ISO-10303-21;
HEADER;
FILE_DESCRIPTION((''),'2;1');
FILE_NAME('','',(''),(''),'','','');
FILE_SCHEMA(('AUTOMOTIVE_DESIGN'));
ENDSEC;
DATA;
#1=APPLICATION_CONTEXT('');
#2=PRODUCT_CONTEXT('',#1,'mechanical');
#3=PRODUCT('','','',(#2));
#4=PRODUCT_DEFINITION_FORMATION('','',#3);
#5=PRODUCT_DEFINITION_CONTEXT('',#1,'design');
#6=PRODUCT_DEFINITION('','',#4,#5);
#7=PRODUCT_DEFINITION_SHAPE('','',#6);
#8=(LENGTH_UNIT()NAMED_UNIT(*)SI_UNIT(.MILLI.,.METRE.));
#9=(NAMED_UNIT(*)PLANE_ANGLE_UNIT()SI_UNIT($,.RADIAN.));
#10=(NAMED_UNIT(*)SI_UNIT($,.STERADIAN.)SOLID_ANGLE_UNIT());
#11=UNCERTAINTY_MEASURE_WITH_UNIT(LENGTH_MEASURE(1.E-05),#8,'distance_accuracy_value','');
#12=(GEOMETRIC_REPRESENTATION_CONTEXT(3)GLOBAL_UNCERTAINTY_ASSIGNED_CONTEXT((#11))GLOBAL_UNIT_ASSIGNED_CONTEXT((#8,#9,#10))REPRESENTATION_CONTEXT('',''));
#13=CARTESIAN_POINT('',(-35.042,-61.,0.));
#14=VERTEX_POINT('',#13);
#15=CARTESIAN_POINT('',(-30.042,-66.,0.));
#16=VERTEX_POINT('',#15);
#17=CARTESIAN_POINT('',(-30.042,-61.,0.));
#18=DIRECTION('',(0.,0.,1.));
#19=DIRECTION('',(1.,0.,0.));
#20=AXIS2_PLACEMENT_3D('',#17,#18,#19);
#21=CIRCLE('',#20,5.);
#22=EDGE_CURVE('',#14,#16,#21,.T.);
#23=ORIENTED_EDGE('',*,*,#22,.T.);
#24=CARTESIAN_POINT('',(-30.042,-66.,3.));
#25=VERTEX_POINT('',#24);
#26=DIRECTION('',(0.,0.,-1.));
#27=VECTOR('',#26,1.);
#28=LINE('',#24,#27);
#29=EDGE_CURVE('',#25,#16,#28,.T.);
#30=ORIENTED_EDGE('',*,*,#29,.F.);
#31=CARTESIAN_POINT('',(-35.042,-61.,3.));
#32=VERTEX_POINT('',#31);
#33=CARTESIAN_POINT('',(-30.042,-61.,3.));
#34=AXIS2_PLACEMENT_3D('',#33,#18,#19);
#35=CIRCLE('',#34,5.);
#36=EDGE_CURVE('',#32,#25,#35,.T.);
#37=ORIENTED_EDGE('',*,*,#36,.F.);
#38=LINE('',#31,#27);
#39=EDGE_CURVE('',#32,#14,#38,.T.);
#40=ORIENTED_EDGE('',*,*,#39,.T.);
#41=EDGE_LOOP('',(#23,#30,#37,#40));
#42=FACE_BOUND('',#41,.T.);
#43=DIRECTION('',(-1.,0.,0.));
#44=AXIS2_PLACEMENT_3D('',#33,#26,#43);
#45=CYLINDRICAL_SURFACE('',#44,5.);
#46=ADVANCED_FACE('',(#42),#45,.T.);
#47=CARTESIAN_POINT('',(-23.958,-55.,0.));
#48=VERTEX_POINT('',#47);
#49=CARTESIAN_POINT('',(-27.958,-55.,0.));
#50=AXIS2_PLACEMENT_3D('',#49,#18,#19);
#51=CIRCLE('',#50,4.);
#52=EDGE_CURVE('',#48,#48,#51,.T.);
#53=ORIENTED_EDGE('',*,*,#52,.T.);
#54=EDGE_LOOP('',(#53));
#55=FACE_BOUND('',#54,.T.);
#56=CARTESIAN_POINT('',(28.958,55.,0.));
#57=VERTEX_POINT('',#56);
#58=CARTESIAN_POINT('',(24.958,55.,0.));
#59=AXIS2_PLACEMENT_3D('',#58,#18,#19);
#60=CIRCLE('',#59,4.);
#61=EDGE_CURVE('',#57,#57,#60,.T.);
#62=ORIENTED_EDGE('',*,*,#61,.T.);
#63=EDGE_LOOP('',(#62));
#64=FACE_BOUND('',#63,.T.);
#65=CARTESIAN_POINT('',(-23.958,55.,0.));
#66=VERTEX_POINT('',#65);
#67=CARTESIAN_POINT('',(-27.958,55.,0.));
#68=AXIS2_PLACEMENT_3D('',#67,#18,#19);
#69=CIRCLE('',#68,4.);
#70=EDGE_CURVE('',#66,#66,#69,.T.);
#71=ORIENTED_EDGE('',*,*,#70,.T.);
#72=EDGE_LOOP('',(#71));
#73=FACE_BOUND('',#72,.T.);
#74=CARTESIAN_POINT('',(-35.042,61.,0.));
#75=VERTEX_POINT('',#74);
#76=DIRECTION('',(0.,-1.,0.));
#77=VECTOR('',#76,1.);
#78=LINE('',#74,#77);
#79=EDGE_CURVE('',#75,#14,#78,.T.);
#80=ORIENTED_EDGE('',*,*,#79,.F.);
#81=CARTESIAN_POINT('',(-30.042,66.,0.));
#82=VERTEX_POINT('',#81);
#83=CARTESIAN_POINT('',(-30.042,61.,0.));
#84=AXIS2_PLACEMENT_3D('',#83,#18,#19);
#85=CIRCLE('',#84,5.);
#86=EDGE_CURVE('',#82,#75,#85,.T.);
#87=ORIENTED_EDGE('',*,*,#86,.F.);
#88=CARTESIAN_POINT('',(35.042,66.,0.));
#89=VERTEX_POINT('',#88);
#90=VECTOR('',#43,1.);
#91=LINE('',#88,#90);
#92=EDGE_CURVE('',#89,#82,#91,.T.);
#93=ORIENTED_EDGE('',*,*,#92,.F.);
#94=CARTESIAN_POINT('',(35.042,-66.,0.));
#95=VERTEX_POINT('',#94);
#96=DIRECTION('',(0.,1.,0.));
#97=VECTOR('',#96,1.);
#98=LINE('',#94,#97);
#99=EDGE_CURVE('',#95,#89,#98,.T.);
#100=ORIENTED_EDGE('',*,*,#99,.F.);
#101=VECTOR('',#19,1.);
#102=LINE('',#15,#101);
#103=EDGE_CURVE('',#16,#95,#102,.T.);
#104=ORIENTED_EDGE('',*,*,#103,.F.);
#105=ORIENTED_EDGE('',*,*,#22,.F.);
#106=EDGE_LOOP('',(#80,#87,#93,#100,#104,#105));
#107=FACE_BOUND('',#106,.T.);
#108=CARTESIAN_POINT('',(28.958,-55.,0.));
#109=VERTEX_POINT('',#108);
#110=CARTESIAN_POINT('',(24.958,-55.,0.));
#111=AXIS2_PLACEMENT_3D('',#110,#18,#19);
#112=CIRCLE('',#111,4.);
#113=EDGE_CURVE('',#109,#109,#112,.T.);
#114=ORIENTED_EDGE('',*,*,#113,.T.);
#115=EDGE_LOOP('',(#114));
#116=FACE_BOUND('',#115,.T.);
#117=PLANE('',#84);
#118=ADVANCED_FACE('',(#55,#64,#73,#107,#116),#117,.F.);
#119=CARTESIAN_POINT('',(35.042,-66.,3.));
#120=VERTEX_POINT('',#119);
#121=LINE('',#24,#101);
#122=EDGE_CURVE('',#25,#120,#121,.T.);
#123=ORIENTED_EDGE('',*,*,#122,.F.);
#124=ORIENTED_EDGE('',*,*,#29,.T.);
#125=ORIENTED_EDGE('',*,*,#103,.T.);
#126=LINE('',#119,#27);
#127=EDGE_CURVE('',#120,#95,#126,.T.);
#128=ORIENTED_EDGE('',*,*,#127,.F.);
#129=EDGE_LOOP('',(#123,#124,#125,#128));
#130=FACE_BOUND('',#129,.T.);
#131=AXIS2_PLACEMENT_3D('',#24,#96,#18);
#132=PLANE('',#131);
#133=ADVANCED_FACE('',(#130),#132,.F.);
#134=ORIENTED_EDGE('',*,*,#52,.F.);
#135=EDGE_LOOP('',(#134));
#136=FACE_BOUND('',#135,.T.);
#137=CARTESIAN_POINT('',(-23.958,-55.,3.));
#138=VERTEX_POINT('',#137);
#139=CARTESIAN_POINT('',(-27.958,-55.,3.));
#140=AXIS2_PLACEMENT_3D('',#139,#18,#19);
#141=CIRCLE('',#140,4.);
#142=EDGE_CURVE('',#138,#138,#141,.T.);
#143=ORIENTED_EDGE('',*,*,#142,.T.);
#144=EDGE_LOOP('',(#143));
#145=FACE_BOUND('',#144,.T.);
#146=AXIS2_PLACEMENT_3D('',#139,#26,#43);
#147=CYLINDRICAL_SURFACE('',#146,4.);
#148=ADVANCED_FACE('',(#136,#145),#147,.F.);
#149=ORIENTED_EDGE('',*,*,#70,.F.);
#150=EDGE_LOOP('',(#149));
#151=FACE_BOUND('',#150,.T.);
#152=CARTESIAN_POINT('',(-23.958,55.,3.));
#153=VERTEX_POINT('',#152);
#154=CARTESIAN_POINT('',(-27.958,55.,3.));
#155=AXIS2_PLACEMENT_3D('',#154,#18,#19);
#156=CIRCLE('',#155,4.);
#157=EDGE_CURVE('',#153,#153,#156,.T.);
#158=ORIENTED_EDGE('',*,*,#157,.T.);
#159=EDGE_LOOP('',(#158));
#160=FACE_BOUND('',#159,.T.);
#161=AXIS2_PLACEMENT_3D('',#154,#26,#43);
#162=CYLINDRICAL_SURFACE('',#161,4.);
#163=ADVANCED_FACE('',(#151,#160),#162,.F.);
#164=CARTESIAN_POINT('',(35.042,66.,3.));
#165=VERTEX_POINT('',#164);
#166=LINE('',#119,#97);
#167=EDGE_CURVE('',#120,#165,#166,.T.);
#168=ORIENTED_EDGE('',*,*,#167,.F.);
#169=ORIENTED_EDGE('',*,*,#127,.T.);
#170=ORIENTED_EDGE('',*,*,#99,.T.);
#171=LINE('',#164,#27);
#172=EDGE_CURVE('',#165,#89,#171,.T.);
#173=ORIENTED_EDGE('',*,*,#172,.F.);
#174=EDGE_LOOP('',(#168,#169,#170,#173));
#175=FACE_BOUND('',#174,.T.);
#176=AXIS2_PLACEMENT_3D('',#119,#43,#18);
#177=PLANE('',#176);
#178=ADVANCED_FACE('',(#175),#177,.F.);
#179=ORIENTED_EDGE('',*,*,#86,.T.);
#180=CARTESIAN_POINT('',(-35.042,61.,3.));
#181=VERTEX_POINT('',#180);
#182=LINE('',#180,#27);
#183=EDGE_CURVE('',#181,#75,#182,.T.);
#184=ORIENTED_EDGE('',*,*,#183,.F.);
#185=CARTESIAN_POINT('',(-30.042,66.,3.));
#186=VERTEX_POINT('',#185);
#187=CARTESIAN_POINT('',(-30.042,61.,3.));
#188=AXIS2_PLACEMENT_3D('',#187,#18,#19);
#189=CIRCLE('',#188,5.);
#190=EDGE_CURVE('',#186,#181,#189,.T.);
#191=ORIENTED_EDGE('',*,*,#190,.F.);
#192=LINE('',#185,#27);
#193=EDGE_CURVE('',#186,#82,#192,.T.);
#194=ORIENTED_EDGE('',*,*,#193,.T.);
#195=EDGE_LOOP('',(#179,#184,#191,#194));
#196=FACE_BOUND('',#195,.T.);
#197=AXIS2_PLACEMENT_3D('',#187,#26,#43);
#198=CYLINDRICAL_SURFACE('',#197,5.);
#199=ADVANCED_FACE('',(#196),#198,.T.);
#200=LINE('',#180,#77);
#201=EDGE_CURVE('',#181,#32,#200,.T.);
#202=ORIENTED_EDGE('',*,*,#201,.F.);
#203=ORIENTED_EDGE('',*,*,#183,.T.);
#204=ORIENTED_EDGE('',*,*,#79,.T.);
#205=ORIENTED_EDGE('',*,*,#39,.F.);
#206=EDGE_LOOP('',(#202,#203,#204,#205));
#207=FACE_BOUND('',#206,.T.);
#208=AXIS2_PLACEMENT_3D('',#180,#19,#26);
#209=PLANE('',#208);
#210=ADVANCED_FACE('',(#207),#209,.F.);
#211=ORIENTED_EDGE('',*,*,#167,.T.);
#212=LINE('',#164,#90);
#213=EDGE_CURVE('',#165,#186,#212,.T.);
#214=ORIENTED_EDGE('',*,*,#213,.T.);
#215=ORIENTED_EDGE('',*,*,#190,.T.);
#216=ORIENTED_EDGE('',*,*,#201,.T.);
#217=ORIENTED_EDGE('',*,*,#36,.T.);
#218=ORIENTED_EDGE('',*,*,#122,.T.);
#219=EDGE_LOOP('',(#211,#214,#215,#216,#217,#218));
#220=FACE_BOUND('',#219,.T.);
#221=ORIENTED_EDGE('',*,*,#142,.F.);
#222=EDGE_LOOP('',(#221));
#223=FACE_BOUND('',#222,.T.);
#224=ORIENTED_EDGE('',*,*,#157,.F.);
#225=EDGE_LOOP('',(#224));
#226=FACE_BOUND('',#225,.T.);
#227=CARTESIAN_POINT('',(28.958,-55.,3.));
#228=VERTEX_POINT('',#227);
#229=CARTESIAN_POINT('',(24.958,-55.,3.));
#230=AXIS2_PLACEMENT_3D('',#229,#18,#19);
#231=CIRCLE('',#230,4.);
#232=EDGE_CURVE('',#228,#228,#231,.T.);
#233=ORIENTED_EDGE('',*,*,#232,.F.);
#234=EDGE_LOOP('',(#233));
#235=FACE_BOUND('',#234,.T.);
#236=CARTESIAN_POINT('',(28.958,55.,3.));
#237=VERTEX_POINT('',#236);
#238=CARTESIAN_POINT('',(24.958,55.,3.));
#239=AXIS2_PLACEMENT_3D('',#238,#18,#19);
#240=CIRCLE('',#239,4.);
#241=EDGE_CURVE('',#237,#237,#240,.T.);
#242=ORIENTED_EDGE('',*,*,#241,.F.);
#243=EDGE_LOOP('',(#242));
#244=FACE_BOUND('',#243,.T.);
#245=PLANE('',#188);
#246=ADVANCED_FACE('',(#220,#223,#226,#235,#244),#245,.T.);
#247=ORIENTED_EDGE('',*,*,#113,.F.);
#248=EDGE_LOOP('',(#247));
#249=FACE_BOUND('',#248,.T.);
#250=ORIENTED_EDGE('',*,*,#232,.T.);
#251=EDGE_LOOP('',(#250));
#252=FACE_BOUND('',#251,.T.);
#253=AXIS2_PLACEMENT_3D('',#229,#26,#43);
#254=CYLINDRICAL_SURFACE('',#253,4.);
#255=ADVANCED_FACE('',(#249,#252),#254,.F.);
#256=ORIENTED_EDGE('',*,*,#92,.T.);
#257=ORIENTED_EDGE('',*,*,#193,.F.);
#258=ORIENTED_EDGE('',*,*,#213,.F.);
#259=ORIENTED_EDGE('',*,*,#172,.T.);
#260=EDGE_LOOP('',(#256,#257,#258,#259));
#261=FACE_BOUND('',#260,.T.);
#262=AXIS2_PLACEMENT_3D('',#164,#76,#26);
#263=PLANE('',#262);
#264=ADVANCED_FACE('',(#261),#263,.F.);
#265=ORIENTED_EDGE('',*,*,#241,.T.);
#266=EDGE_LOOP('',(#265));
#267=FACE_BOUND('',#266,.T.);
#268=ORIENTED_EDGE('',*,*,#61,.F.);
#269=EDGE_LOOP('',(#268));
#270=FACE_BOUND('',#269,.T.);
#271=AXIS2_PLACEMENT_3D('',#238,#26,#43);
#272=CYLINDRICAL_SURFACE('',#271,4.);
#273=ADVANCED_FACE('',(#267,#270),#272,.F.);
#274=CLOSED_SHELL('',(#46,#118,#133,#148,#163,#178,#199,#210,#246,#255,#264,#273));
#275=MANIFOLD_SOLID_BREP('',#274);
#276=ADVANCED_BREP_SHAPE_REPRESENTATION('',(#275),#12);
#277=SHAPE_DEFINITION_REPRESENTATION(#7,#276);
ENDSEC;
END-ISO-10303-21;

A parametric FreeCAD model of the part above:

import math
import FreeCAD as App
import Part
import Sketcher

doc = App.newDocument("Part")
body = doc.addObject("PartDesign::Body", "Body")

sketch1 = body.newObject("Sketcher::SketchObject", "Sketch")
sketch1.AttachmentSupport = (doc.getObject("XY_Plane"), [""])
sketch1.MapMode = "FlatFace"
sketch1.addGeometry([
    Part.LineSegment(App.Vector(-35, 61, 0), App.Vector(-35, -61, 0)),
    Part.ArcOfCircle(Part.Circle(App.Vector(-30, -61, 0), App.Vector(0, 0, 1), 5), math.radians(180), math.radians(270)),
    Part.LineSegment(App.Vector(-30, -66, 0), App.Vector(35, -66, 0)),
    Part.LineSegment(App.Vector(35, -66, 0), App.Vector(35, 66, 0)),
    Part.LineSegment(App.Vector(35, 66, 0), App.Vector(-30, 66, 0)),
    Part.ArcOfCircle(Part.Circle(App.Vector(-30, 61, 0), App.Vector(0, 0, 1), 5), math.radians(90), math.radians(180)),
    Part.Circle(App.Vector(-28, -55, 0), App.Vector(0, 0, 1), 4),
    Part.Circle(App.Vector(25, -55, 0), App.Vector(0, 0, 1), 4),
    Part.Circle(App.Vector(-28, 55, 0), App.Vector(0, 0, 1), 4),
    Part.Circle(App.Vector(25, 55, 0), App.Vector(0, 0, 1), 4),
], False)
sketch1.addConstraint([
    Sketcher.Constraint("Tangent", 0, 2, 1, 1),
    Sketcher.Constraint("Tangent", 1, 2, 2, 1),
    Sketcher.Constraint("Coincident", 2, 2, 3, 1),
    Sketcher.Constraint("Coincident", 3, 2, 4, 1),
    Sketcher.Constraint("Tangent", 4, 2, 5, 1),
    Sketcher.Constraint("Tangent", 5, 2, 0, 1),
    Sketcher.Constraint("Vertical", 0),
    Sketcher.Constraint("Horizontal", 2),
    Sketcher.Constraint("Vertical", 3),
    Sketcher.Constraint("Horizontal", 4),
    Sketcher.Constraint("Equal", 1, 5),
    Sketcher.Constraint("Equal", 6, 7),
    Sketcher.Constraint("Equal", 7, 8),
    Sketcher.Constraint("Equal", 8, 9),
    Sketcher.Constraint("Symmetric", 6, 3, 8, 3, -1),
    Sketcher.Constraint("Symmetric", 7, 3, 9, 3, -1),
    Sketcher.Constraint("Horizontal", 6, 3, 7, 3),
    Sketcher.Constraint("Diameter", 6, 8.0),
    Sketcher.Constraint("Radius", 1, 5.0),
    Sketcher.Constraint("DistanceY", 0, 2, 0, 1, 122.0),
    Sketcher.Constraint("DistanceY", 1, 3, -1, 1, 61.0),
    Sketcher.Constraint("DistanceY", 6, 3, -1, 1, 55.0),
    Sketcher.Constraint("DistanceX", 1, 3, 7, 3, 55.0),
    Sketcher.Constraint("DistanceX", 6, 3, 2, 2, 63.0),
    Sketcher.Constraint("DistanceX", 2, 1, 2, 2, 65.084),
    Sketcher.Constraint("DistanceX", 1, 3, -1, 1, 30.042),
])
pad1 = body.newObject("PartDesign::Pad", "Pad")
pad1.Profile = sketch1
pad1.Length = 3

doc.recompute()
